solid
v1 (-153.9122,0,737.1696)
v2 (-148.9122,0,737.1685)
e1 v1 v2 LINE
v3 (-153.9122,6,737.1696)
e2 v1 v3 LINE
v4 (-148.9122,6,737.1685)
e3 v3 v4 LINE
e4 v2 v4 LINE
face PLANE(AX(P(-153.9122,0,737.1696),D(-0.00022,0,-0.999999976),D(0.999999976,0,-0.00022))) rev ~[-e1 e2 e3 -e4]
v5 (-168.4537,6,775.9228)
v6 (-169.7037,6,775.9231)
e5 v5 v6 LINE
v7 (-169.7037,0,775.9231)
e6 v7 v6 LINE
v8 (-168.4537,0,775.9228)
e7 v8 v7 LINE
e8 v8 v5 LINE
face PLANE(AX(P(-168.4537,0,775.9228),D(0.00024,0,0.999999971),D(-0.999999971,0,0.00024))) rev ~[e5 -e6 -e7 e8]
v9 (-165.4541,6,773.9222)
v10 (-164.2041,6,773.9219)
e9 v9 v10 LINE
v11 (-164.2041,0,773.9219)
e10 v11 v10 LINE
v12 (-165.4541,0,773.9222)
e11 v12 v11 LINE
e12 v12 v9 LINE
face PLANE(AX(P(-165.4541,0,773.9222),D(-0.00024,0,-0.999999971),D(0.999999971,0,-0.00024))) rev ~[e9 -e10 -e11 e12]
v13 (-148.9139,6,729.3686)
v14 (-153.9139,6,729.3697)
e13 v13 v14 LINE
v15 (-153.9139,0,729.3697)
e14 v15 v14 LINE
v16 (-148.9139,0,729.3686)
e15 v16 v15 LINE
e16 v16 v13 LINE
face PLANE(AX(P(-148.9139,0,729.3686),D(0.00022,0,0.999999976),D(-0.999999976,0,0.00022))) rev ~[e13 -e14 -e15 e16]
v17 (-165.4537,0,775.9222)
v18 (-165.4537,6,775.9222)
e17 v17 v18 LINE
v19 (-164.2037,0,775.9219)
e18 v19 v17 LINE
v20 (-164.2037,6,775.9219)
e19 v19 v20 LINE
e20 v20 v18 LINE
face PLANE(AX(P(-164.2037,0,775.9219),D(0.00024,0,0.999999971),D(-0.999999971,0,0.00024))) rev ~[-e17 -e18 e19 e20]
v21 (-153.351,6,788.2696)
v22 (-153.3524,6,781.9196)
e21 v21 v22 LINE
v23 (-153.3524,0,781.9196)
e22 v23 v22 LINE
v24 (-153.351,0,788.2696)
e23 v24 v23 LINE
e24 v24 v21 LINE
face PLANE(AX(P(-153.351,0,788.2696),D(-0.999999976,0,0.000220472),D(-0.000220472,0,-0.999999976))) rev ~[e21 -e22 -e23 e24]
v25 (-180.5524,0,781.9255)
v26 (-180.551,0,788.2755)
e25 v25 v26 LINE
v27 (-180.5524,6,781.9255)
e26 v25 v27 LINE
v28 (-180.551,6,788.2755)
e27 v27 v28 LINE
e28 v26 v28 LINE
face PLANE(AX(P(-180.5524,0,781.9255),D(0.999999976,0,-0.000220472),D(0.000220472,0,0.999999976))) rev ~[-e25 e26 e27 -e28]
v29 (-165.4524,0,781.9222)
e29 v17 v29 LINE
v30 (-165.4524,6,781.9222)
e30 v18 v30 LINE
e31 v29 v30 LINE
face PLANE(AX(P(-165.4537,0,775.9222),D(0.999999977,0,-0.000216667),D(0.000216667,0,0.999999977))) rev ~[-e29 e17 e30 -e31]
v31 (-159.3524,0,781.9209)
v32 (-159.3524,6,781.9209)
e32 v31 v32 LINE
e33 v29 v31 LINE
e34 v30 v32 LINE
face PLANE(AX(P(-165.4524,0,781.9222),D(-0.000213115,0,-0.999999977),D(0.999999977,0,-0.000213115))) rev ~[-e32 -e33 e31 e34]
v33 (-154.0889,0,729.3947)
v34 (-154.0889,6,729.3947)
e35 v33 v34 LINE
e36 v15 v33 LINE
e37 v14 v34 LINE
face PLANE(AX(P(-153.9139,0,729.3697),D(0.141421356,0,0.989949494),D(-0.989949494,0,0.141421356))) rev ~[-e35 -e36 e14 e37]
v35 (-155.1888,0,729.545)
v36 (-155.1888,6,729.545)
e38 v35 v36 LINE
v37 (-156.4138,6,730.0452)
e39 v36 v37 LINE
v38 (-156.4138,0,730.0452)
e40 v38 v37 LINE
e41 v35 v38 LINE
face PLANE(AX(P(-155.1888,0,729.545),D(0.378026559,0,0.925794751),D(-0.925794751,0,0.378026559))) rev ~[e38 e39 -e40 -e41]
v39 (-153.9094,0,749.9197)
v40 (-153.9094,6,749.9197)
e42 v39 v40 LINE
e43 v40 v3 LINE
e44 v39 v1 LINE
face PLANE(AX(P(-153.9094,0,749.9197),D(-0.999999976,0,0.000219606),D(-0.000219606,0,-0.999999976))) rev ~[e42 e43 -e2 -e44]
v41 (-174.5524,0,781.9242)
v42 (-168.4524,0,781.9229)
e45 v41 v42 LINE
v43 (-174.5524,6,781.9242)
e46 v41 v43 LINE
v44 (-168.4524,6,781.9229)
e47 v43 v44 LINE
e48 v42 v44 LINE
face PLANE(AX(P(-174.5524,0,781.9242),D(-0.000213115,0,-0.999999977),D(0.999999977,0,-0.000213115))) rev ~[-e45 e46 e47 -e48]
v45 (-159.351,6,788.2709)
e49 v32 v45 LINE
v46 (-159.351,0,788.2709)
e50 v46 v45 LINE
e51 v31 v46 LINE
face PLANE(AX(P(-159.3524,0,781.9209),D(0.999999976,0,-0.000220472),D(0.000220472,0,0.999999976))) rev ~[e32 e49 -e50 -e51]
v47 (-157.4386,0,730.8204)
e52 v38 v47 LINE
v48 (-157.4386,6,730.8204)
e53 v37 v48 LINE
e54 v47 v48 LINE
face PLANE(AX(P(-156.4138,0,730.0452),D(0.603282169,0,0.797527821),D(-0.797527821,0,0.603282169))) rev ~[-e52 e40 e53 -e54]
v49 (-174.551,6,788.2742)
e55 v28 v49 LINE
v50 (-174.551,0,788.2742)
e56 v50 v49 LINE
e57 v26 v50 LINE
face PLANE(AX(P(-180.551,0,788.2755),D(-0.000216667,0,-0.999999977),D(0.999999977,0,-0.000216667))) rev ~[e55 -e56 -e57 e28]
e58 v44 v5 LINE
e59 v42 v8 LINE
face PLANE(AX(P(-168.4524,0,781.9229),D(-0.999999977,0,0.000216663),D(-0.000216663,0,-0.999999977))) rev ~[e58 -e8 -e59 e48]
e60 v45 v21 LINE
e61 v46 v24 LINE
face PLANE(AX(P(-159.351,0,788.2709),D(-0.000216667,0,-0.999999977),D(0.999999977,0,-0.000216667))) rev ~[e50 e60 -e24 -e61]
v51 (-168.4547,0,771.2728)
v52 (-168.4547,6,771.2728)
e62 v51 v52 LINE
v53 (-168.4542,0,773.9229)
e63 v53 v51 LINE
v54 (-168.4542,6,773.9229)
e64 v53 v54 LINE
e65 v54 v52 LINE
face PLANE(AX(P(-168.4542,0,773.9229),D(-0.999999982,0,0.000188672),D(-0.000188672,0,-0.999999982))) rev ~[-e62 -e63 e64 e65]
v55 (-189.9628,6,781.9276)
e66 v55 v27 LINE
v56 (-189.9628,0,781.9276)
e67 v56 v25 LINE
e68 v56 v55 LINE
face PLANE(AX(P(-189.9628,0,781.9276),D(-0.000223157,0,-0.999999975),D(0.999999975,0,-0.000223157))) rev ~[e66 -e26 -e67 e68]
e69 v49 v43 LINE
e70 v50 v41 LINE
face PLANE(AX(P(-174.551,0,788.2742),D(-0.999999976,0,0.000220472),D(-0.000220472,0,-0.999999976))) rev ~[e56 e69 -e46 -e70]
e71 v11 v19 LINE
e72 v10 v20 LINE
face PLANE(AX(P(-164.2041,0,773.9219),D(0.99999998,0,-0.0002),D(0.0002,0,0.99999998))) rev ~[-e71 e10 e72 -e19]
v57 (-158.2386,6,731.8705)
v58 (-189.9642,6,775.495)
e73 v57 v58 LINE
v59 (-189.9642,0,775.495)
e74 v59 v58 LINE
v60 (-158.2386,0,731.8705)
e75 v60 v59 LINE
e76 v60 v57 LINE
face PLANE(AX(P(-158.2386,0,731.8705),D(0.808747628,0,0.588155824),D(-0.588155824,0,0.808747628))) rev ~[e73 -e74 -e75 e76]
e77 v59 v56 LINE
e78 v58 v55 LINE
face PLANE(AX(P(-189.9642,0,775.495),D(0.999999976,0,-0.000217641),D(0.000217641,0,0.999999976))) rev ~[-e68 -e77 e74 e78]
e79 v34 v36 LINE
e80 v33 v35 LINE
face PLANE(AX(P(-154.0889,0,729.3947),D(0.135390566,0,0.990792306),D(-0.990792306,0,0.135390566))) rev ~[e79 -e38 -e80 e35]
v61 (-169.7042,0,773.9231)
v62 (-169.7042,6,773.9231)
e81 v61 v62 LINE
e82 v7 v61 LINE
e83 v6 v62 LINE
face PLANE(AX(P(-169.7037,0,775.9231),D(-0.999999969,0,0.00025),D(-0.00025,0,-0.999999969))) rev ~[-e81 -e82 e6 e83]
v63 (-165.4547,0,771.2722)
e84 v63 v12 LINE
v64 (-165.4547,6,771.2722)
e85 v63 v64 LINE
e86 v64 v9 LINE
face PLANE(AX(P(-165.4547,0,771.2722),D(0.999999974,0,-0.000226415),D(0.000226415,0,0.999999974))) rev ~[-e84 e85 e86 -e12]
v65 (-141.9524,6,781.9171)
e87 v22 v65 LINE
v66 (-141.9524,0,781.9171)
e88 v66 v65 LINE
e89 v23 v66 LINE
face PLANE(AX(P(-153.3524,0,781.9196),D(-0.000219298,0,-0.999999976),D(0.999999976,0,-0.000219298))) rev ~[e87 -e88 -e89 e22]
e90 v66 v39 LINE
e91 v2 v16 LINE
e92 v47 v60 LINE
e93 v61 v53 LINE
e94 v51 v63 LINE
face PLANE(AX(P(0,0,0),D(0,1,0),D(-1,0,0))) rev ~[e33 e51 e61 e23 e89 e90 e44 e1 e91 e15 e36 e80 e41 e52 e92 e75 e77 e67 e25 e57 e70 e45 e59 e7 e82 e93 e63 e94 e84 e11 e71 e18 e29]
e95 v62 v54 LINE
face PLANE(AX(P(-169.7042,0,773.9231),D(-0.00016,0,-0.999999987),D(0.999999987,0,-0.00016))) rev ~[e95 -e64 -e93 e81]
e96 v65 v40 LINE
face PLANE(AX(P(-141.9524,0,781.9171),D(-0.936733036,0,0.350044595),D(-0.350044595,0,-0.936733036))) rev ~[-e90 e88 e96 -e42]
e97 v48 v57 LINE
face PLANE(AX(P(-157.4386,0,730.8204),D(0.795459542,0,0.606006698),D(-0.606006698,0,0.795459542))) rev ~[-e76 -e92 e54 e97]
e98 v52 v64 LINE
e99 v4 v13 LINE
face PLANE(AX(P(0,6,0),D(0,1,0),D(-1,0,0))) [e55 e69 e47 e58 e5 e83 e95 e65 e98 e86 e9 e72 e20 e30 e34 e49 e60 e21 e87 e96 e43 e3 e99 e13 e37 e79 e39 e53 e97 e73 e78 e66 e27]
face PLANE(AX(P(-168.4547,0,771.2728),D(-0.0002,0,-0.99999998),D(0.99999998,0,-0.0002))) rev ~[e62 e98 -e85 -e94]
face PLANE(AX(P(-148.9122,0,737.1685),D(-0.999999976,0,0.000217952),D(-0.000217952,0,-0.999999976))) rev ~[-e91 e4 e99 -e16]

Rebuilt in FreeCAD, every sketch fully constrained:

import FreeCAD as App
import Part
import Sketcher
from FreeCAD import Vector
Q = App.Units.Quantity

doc = App.newDocument("Part")
params = doc.addObject("Spreadsheet::Sheet", "Params")
for row, (alias, value) in enumerate([
    ("sketch1_length", "6 mm"),
    ("sketch1_length2", "6 mm"),
    ("sketch1_length3", "2 mm"),
    ("sketch1_length4", "3 mm"),
    ("sketch1_length5", "2 mm"),
    ("pad1_length", "6 mm"),
], start=1):
    params.set(f"A{row}", alias)
    params.set(f"B{row}", "=" + value)
    params.setAlias(f"B{row}", alias)

body = doc.addObject("PartDesign::Body", "Body")

# Sketch on XZ plane
sketch1 = doc.addObject("Sketcher::SketchObject", "Sketch")
body.addObject(sketch1)
sketch1.AttachmentSupport = (doc.XZ_Plane, [""])
sketch1.MapMode = "FlatFace"
sketch1.addGeometry(Part.LineSegment(Vector(-189.9628, 781.9276, 0), Vector(-180.5524, 781.9255, 0)), False)
sketch1.addGeometry(Part.LineSegment(Vector(-180.5524, 781.9255, 0), Vector(-180.551, 788.2755, 0)), False)
sketch1.addGeometry(Part.LineSegment(Vector(-180.551, 788.2755, 0), Vector(-174.551, 788.2742, 0)), False)
sketch1.addGeometry(Part.LineSegment(Vector(-174.551, 788.2742, 0), Vector(-174.5524, 781.9242, 0)), False)
sketch1.addGeometry(Part.LineSegment(Vector(-174.5524, 781.9242, 0), Vector(-168.4524, 781.9229, 0)), False)
sketch1.addGeometry(Part.LineSegment(Vector(-168.4524, 781.9229, 0), Vector(-168.4537, 775.9228, 0)), False)
sketch1.addGeometry(Part.LineSegment(Vector(-168.4537, 775.9228, 0), Vector(-169.7037, 775.9231, 0)), False)
sketch1.addGeometry(Part.LineSegment(Vector(-169.7037, 775.9231, 0), Vector(-169.7042, 773.9231, 0)), False)
sketch1.addGeometry(Part.LineSegment(Vector(-169.7042, 773.9231, 0), Vector(-168.4542, 773.9229, 0)), False)
sketch1.addGeometry(Part.LineSegment(Vector(-168.4542, 773.9229, 0), Vector(-168.4547, 771.2728, 0)), False)
sketch1.addGeometry(Part.LineSegment(Vector(-168.4547, 771.2728, 0), Vector(-165.4547, 771.2722, 0)), False)
sketch1.addGeometry(Part.LineSegment(Vector(-165.4547, 771.2722, 0), Vector(-165.4541, 773.9222, 0)), False)
sketch1.addGeometry(Part.LineSegment(Vector(-165.4541, 773.9222, 0), Vector(-164.2041, 773.9219, 0)), False)
sketch1.addGeometry(Part.LineSegment(Vector(-164.2041, 773.9219, 0), Vector(-164.2037, 775.9219, 0)), False)
sketch1.addGeometry(Part.LineSegment(Vector(-164.2037, 775.9219, 0), Vector(-165.4537, 775.9222, 0)), False)
sketch1.addGeometry(Part.LineSegment(Vector(-165.4537, 775.9222, 0), Vector(-165.4524, 781.9222, 0)), False)
sketch1.addGeometry(Part.LineSegment(Vector(-165.4524, 781.9222, 0), Vector(-159.3524, 781.9209, 0)), False)
sketch1.addGeometry(Part.LineSegment(Vector(-159.3524, 781.9209, 0), Vector(-159.351, 788.2709, 0)), False)
sketch1.addGeometry(Part.LineSegment(Vector(-159.351, 788.2709, 0), Vector(-153.351, 788.2696, 0)), False)
sketch1.addGeometry(Part.LineSegment(Vector(-153.351, 788.2696, 0), Vector(-153.3524, 781.9196, 0)), False)
sketch1.addGeometry(Part.LineSegment(Vector(-153.3524, 781.9196, 0), Vector(-141.9524, 781.9171, 0)), False)
sketch1.addGeometry(Part.LineSegment(Vector(-141.9524, 781.9171, 0), Vector(-153.9094, 749.9197, 0)), False)
sketch1.addGeometry(Part.LineSegment(Vector(-153.9094, 749.9197, 0), Vector(-153.9122, 737.1696, 0)), False)
sketch1.addGeometry(Part.LineSegment(Vector(-153.9122, 737.1696, 0), Vector(-148.9122, 737.1685, 0)), False)
sketch1.addGeometry(Part.LineSegment(Vector(-148.9122, 737.1685, 0), Vector(-148.9139, 729.3686, 0)), False)
sketch1.addGeometry(Part.LineSegment(Vector(-148.9139, 729.3686, 0), Vector(-153.9139, 729.3697, 0)), False)
sketch1.addGeometry(Part.LineSegment(Vector(-153.9139, 729.3697, 0), Vector(-154.0889, 729.3947, 0)), False)
sketch1.addGeometry(Part.LineSegment(Vector(-154.0889, 729.3947, 0), Vector(-155.1888, 729.545, 0)), False)
sketch1.addGeometry(Part.LineSegment(Vector(-155.1888, 729.545, 0), Vector(-156.4138, 730.0452, 0)), False)
sketch1.addGeometry(Part.LineSegment(Vector(-156.4138, 730.0452, 0), Vector(-157.4386, 730.8204, 0)), False)
sketch1.addGeometry(Part.LineSegment(Vector(-157.4386, 730.8204, 0), Vector(-158.2386, 731.8705, 0)), False)
sketch1.addGeometry(Part.LineSegment(Vector(-158.2386, 731.8705, 0), Vector(-189.9642, 775.495, 0)), False)
sketch1.addGeometry(Part.LineSegment(Vector(-189.9642, 775.495, 0), Vector(-189.9628, 781.9276, 0)), False)
sketch1.addConstraint(Sketcher.Constraint("Coincident", 0, 2, 1, 1))
sketch1.addConstraint(Sketcher.Constraint("Coincident", 1, 2, 2, 1))
sketch1.addConstraint(Sketcher.Constraint("Coincident", 2, 2, 3, 1))
sketch1.addConstraint(Sketcher.Constraint("Coincident", 3, 2, 4, 1))
sketch1.addConstraint(Sketcher.Constraint("Coincident", 4, 2, 5, 1))
sketch1.addConstraint(Sketcher.Constraint("Coincident", 5, 2, 6, 1))
sketch1.addConstraint(Sketcher.Constraint("Coincident", 6, 2, 7, 1))
sketch1.addConstraint(Sketcher.Constraint("Coincident", 7, 2, 8, 1))
sketch1.addConstraint(Sketcher.Constraint("Coincident", 8, 2, 9, 1))
sketch1.addConstraint(Sketcher.Constraint("Coincident", 9, 2, 10, 1))
sketch1.addConstraint(Sketcher.Constraint("Coincident", 10, 2, 11, 1))
sketch1.addConstraint(Sketcher.Constraint("Coincident", 11, 2, 12, 1))
sketch1.addConstraint(Sketcher.Constraint("Coincident", 12, 2, 13, 1))
sketch1.addConstraint(Sketcher.Constraint("Coincident", 13, 2, 14, 1))
sketch1.addConstraint(Sketcher.Constraint("Coincident", 14, 2, 15, 1))
sketch1.addConstraint(Sketcher.Constraint("Coincident", 15, 2, 16, 1))
sketch1.addConstraint(Sketcher.Constraint("Coincident", 16, 2, 17, 1))
sketch1.addConstraint(Sketcher.Constraint("Coincident", 17, 2, 18, 1))
sketch1.addConstraint(Sketcher.Constraint("Coincident", 18, 2, 19, 1))
sketch1.addConstraint(Sketcher.Constraint("Coincident", 19, 2, 20, 1))
sketch1.addConstraint(Sketcher.Constraint("Coincident", 20, 2, 21, 1))
sketch1.addConstraint(Sketcher.Constraint("Coincident", 21, 2, 22, 1))
sketch1.addConstraint(Sketcher.Constraint("Coincident", 22, 2, 23, 1))
sketch1.addConstraint(Sketcher.Constraint("Coincident", 23, 2, 24, 1))
sketch1.addConstraint(Sketcher.Constraint("Coincident", 24, 2, 25, 1))
sketch1.addConstraint(Sketcher.Constraint("Coincident", 25, 2, 26, 1))
sketch1.addConstraint(Sketcher.Constraint("Coincident", 26, 2, 27, 1))
sketch1.addConstraint(Sketcher.Constraint("Coincident", 27, 2, 28, 1))
sketch1.addConstraint(Sketcher.Constraint("Coincident", 28, 2, 29, 1))
sketch1.addConstraint(Sketcher.Constraint("Coincident", 29, 2, 30, 1))
sketch1.addConstraint(Sketcher.Constraint("Coincident", 30, 2, 31, 1))
sketch1.addConstraint(Sketcher.Constraint("Coincident", 31, 2, 32, 1))
sketch1.addConstraint(Sketcher.Constraint("Coincident", 32, 2, 0, 1))
sketch1.addConstraint(Sketcher.Constraint("Horizontal", 8))
sketch1.addConstraint(Sketcher.Constraint("Distance", 2, Q("6 mm")))
sketch1.addConstraint(Sketcher.Constraint("Distance", 5, Q("6 mm")))
sketch1.addConstraint(Sketcher.Constraint("Distance", 7, Q("2 mm")))
sketch1.addConstraint(Sketcher.Constraint("Distance", 10, Q("3 mm")))
sketch1.addConstraint(Sketcher.Constraint("Distance", 13, Q("2 mm")))
sketch1.addConstraint(Sketcher.Constraint("Distance", 15, Q("6 mm")))
sketch1.addConstraint(Sketcher.Constraint("Distance", 18, Q("6 mm")))
sketch1.addConstraint(Sketcher.Constraint("Distance", 23, Q("5 mm")))
sketch1.addConstraint(Sketcher.Constraint("Distance", 25, Q("5 mm")))
sketch1.addConstraint(Sketcher.Constraint("DistanceX", 0, 2, 3, 2, Q("6 mm")))
sketch1.addConstraint(Sketcher.Constraint("DistanceY", 8, 2, 5, 2, Q("2 mm")))
sketch1.addConstraint(Sketcher.Constraint("DistanceX", 8, 2, 11, 2, Q("3 mm")))
sketch1.addConstraint(Sketcher.Constraint("DistanceY", 11, 2, 14, 2, Q("2 mm")))
sketch1.addConstraint(Sketcher.Constraint("DistanceX", 5, 2, 14, 2, Q("3 mm")))
sketch1.addConstraint(Sketcher.Constraint("DistanceX", 4, 2, 15, 2, Q("3 mm")))
sketch1.addConstraint(Sketcher.Constraint("DistanceX", 16, 2, 19, 2, Q("6 mm")))
sketch1.addConstraint(Sketcher.Constraint("Distance", 4, Q("6.1 mm")))
sketch1.addConstraint(Sketcher.Constraint("Distance", 16, Q("6.1 mm")))
sketch1.addConstraint(Sketcher.Constraint("Distance", 20, Q("11.4 mm")))
sketch1.addConstraint(Sketcher.Constraint("Distance", 24, Q("7.8 mm")))
sketch1.addConstraint(Sketcher.Constraint("DistanceX", 8, 1, 8, 2, Q("1.25 mm")))
sketch1.addConstraint(Sketcher.Constraint("DistanceY", 25, 2, 22, 2, Q("7.8 mm")))
sketch1.addConstraint(Sketcher.Constraint("DistanceX", 27, 2, 26, 2, Q("1.1 mm")))
sketch1.addConstraint(Sketcher.Constraint("DistanceX", 28, 2, 25, 2, Q("2.5 mm")))
sketch1.addConstraint(Sketcher.Constraint("DistanceX", 30, 2, 29, 2, Q("0.8 mm")))
sketch1.addConstraint(Sketcher.Constraint("Distance", 1, Q("6.35 mm")))
sketch1.addConstraint(Sketcher.Constraint("Distance", 3, Q("6.35 mm")))
sketch1.addConstraint(Sketcher.Constraint("Distance", 6, Q("1.25 mm")))
sketch1.addConstraint(Sketcher.Constraint("Distance", 9, Q("2.65 mm")))
sketch1.addConstraint(Sketcher.Constraint("Distance", 11, Q("2.65 mm")))
sketch1.addConstraint(Sketcher.Constraint("Distance", 12, Q("1.25 mm")))
sketch1.addConstraint(Sketcher.Constraint("Distance", 14, Q("1.25 mm")))
sketch1.addConstraint(Sketcher.Constraint("Distance", 17, Q("6.35 mm")))
sketch1.addConstraint(Sketcher.Constraint("Distance", 19, Q("6.35 mm")))
sketch1.addConstraint(Sketcher.Constraint("Distance", 22, Q("12.75 mm")))
sketch1.addConstraint(Sketcher.Constraint("Distance", 30, Q("1.32 mm")))
sketch1.addConstraint(Sketcher.Constraint("Distance", 29, Q("1.285 mm")))
sketch1.addConstraint(Sketcher.Constraint("DistanceX", 1, 2, -1, 1, Q("180.551 mm")))
sketch1.addConstraint(Sketcher.Constraint("DistanceY", -1, 1, 4, 2, Q("781.923 mm")))
sketch1.addConstraint(Sketcher.Constraint("DistanceX", 11, 2, -1, 1, Q("165.454 mm")))
sketch1.addConstraint(Sketcher.Constraint("DistanceY", -1, 1, 12, 2, Q("773.922 mm")))
sketch1.addConstraint(Sketcher.Constraint("DistanceY", -1, 1, 16, 2, Q("781.921 mm")))
sketch1.addConstraint(Sketcher.Constraint("DistanceX", 17, 2, -1, 1, Q("159.351 mm")))
sketch1.addConstraint(Sketcher.Constraint("DistanceY", -1, 1, 20, 2, Q("781.917 mm")))
sketch1.addConstraint(Sketcher.Constraint("DistanceX", 24, 2, -1, 1, Q("148.914 mm")))
sketch1.addConstraint(Sketcher.Constraint("DistanceX", 26, 2, -1, 1, Q("154.089 mm")))
sketch1.addConstraint(Sketcher.Constraint("DistanceY", -1, 1, 27, 2, Q("729.545 mm")))
sketch1.addConstraint(Sketcher.Constraint("DistanceY", -1, 1, 31, 2, Q("775.495 mm")))
sketch1.addConstraint(Sketcher.Constraint("DistanceY", 6, 2, 3, 2, Q("6.001 mm")))
sketch1.addConstraint(Sketcher.Constraint("DistanceX", 9, 2, 5, 2, Q("0.001 mm")))
sketch1.addConstraint(Sketcher.Constraint("DistanceY", 10, 2, 7, 2, Q("2.651 mm")))
sketch1.addConstraint(Sketcher.Constraint("DistanceY", 21, 2, 9, 2, Q("21.353 mm")))
sketch1.addConstraint(Sketcher.Constraint("DistanceX", 12, 2, 22, 2, Q("10.292 mm")))
sketch1.addConstraint(Sketcher.Constraint("DistanceY", 23, 2, 22, 2, Q("0.001 mm")))
sketch1.addConstraint(Sketcher.Constraint("DistanceY", 25, 2, 26, 2, Q("0.025 mm")))
sketch1.addConstraint(Sketcher.Constraint("DistanceY", 0, 2, 32, 2, Q("0.002 mm")))
sketch1.addConstraint(Sketcher.Constraint("Distance", 0, Q("9.4104 mm")))
sketch1.addConstraint(Sketcher.Constraint("Distance", 21, Q("34.1585 mm")))
sketch1.addConstraint(Sketcher.Constraint("Distance", 28, Q("1.3232 mm")))
sketch1.addConstraint(Sketcher.Constraint("Distance", 31, Q("53.9408 mm")))
sketch1.addConstraint(Sketcher.Constraint("Distance", 32, Q("6.4326 mm")))
sketch1.addConstraint(Sketcher.Constraint("DistanceX", 0, 2, -1, 1, Q("180.5524 mm")))
sketch1.addConstraint(Sketcher.Constraint("DistanceX", 5, 2, -1, 1, Q("168.4537 mm")))
sketch1.addConstraint(Sketcher.Constraint("DistanceY", -1, 1, 18, 2, Q("788.2696 mm")))
sketch1.addConstraint(Sketcher.Constraint("DistanceX", 29, 2, -1, 1, Q("157.4386 mm")))
sketch1.setExpression("Constraints[34]", "Params.sketch1_length")
sketch1.setExpression("Constraints[35]", "Params.sketch1_length2")
sketch1.setExpression("Constraints[36]", "Params.sketch1_length3")
sketch1.setExpression("Constraints[37]", "Params.sketch1_length4")
sketch1.setExpression("Constraints[38]", "Params.sketch1_length5")
pad1 = doc.addObject("PartDesign::Pad", "Pad")
body.addObject(pad1)
pad1.Profile = sketch1
pad1.setExpression("Length", "Params.pad1_length")
pad1.Reversed = True

doc.recompute()
